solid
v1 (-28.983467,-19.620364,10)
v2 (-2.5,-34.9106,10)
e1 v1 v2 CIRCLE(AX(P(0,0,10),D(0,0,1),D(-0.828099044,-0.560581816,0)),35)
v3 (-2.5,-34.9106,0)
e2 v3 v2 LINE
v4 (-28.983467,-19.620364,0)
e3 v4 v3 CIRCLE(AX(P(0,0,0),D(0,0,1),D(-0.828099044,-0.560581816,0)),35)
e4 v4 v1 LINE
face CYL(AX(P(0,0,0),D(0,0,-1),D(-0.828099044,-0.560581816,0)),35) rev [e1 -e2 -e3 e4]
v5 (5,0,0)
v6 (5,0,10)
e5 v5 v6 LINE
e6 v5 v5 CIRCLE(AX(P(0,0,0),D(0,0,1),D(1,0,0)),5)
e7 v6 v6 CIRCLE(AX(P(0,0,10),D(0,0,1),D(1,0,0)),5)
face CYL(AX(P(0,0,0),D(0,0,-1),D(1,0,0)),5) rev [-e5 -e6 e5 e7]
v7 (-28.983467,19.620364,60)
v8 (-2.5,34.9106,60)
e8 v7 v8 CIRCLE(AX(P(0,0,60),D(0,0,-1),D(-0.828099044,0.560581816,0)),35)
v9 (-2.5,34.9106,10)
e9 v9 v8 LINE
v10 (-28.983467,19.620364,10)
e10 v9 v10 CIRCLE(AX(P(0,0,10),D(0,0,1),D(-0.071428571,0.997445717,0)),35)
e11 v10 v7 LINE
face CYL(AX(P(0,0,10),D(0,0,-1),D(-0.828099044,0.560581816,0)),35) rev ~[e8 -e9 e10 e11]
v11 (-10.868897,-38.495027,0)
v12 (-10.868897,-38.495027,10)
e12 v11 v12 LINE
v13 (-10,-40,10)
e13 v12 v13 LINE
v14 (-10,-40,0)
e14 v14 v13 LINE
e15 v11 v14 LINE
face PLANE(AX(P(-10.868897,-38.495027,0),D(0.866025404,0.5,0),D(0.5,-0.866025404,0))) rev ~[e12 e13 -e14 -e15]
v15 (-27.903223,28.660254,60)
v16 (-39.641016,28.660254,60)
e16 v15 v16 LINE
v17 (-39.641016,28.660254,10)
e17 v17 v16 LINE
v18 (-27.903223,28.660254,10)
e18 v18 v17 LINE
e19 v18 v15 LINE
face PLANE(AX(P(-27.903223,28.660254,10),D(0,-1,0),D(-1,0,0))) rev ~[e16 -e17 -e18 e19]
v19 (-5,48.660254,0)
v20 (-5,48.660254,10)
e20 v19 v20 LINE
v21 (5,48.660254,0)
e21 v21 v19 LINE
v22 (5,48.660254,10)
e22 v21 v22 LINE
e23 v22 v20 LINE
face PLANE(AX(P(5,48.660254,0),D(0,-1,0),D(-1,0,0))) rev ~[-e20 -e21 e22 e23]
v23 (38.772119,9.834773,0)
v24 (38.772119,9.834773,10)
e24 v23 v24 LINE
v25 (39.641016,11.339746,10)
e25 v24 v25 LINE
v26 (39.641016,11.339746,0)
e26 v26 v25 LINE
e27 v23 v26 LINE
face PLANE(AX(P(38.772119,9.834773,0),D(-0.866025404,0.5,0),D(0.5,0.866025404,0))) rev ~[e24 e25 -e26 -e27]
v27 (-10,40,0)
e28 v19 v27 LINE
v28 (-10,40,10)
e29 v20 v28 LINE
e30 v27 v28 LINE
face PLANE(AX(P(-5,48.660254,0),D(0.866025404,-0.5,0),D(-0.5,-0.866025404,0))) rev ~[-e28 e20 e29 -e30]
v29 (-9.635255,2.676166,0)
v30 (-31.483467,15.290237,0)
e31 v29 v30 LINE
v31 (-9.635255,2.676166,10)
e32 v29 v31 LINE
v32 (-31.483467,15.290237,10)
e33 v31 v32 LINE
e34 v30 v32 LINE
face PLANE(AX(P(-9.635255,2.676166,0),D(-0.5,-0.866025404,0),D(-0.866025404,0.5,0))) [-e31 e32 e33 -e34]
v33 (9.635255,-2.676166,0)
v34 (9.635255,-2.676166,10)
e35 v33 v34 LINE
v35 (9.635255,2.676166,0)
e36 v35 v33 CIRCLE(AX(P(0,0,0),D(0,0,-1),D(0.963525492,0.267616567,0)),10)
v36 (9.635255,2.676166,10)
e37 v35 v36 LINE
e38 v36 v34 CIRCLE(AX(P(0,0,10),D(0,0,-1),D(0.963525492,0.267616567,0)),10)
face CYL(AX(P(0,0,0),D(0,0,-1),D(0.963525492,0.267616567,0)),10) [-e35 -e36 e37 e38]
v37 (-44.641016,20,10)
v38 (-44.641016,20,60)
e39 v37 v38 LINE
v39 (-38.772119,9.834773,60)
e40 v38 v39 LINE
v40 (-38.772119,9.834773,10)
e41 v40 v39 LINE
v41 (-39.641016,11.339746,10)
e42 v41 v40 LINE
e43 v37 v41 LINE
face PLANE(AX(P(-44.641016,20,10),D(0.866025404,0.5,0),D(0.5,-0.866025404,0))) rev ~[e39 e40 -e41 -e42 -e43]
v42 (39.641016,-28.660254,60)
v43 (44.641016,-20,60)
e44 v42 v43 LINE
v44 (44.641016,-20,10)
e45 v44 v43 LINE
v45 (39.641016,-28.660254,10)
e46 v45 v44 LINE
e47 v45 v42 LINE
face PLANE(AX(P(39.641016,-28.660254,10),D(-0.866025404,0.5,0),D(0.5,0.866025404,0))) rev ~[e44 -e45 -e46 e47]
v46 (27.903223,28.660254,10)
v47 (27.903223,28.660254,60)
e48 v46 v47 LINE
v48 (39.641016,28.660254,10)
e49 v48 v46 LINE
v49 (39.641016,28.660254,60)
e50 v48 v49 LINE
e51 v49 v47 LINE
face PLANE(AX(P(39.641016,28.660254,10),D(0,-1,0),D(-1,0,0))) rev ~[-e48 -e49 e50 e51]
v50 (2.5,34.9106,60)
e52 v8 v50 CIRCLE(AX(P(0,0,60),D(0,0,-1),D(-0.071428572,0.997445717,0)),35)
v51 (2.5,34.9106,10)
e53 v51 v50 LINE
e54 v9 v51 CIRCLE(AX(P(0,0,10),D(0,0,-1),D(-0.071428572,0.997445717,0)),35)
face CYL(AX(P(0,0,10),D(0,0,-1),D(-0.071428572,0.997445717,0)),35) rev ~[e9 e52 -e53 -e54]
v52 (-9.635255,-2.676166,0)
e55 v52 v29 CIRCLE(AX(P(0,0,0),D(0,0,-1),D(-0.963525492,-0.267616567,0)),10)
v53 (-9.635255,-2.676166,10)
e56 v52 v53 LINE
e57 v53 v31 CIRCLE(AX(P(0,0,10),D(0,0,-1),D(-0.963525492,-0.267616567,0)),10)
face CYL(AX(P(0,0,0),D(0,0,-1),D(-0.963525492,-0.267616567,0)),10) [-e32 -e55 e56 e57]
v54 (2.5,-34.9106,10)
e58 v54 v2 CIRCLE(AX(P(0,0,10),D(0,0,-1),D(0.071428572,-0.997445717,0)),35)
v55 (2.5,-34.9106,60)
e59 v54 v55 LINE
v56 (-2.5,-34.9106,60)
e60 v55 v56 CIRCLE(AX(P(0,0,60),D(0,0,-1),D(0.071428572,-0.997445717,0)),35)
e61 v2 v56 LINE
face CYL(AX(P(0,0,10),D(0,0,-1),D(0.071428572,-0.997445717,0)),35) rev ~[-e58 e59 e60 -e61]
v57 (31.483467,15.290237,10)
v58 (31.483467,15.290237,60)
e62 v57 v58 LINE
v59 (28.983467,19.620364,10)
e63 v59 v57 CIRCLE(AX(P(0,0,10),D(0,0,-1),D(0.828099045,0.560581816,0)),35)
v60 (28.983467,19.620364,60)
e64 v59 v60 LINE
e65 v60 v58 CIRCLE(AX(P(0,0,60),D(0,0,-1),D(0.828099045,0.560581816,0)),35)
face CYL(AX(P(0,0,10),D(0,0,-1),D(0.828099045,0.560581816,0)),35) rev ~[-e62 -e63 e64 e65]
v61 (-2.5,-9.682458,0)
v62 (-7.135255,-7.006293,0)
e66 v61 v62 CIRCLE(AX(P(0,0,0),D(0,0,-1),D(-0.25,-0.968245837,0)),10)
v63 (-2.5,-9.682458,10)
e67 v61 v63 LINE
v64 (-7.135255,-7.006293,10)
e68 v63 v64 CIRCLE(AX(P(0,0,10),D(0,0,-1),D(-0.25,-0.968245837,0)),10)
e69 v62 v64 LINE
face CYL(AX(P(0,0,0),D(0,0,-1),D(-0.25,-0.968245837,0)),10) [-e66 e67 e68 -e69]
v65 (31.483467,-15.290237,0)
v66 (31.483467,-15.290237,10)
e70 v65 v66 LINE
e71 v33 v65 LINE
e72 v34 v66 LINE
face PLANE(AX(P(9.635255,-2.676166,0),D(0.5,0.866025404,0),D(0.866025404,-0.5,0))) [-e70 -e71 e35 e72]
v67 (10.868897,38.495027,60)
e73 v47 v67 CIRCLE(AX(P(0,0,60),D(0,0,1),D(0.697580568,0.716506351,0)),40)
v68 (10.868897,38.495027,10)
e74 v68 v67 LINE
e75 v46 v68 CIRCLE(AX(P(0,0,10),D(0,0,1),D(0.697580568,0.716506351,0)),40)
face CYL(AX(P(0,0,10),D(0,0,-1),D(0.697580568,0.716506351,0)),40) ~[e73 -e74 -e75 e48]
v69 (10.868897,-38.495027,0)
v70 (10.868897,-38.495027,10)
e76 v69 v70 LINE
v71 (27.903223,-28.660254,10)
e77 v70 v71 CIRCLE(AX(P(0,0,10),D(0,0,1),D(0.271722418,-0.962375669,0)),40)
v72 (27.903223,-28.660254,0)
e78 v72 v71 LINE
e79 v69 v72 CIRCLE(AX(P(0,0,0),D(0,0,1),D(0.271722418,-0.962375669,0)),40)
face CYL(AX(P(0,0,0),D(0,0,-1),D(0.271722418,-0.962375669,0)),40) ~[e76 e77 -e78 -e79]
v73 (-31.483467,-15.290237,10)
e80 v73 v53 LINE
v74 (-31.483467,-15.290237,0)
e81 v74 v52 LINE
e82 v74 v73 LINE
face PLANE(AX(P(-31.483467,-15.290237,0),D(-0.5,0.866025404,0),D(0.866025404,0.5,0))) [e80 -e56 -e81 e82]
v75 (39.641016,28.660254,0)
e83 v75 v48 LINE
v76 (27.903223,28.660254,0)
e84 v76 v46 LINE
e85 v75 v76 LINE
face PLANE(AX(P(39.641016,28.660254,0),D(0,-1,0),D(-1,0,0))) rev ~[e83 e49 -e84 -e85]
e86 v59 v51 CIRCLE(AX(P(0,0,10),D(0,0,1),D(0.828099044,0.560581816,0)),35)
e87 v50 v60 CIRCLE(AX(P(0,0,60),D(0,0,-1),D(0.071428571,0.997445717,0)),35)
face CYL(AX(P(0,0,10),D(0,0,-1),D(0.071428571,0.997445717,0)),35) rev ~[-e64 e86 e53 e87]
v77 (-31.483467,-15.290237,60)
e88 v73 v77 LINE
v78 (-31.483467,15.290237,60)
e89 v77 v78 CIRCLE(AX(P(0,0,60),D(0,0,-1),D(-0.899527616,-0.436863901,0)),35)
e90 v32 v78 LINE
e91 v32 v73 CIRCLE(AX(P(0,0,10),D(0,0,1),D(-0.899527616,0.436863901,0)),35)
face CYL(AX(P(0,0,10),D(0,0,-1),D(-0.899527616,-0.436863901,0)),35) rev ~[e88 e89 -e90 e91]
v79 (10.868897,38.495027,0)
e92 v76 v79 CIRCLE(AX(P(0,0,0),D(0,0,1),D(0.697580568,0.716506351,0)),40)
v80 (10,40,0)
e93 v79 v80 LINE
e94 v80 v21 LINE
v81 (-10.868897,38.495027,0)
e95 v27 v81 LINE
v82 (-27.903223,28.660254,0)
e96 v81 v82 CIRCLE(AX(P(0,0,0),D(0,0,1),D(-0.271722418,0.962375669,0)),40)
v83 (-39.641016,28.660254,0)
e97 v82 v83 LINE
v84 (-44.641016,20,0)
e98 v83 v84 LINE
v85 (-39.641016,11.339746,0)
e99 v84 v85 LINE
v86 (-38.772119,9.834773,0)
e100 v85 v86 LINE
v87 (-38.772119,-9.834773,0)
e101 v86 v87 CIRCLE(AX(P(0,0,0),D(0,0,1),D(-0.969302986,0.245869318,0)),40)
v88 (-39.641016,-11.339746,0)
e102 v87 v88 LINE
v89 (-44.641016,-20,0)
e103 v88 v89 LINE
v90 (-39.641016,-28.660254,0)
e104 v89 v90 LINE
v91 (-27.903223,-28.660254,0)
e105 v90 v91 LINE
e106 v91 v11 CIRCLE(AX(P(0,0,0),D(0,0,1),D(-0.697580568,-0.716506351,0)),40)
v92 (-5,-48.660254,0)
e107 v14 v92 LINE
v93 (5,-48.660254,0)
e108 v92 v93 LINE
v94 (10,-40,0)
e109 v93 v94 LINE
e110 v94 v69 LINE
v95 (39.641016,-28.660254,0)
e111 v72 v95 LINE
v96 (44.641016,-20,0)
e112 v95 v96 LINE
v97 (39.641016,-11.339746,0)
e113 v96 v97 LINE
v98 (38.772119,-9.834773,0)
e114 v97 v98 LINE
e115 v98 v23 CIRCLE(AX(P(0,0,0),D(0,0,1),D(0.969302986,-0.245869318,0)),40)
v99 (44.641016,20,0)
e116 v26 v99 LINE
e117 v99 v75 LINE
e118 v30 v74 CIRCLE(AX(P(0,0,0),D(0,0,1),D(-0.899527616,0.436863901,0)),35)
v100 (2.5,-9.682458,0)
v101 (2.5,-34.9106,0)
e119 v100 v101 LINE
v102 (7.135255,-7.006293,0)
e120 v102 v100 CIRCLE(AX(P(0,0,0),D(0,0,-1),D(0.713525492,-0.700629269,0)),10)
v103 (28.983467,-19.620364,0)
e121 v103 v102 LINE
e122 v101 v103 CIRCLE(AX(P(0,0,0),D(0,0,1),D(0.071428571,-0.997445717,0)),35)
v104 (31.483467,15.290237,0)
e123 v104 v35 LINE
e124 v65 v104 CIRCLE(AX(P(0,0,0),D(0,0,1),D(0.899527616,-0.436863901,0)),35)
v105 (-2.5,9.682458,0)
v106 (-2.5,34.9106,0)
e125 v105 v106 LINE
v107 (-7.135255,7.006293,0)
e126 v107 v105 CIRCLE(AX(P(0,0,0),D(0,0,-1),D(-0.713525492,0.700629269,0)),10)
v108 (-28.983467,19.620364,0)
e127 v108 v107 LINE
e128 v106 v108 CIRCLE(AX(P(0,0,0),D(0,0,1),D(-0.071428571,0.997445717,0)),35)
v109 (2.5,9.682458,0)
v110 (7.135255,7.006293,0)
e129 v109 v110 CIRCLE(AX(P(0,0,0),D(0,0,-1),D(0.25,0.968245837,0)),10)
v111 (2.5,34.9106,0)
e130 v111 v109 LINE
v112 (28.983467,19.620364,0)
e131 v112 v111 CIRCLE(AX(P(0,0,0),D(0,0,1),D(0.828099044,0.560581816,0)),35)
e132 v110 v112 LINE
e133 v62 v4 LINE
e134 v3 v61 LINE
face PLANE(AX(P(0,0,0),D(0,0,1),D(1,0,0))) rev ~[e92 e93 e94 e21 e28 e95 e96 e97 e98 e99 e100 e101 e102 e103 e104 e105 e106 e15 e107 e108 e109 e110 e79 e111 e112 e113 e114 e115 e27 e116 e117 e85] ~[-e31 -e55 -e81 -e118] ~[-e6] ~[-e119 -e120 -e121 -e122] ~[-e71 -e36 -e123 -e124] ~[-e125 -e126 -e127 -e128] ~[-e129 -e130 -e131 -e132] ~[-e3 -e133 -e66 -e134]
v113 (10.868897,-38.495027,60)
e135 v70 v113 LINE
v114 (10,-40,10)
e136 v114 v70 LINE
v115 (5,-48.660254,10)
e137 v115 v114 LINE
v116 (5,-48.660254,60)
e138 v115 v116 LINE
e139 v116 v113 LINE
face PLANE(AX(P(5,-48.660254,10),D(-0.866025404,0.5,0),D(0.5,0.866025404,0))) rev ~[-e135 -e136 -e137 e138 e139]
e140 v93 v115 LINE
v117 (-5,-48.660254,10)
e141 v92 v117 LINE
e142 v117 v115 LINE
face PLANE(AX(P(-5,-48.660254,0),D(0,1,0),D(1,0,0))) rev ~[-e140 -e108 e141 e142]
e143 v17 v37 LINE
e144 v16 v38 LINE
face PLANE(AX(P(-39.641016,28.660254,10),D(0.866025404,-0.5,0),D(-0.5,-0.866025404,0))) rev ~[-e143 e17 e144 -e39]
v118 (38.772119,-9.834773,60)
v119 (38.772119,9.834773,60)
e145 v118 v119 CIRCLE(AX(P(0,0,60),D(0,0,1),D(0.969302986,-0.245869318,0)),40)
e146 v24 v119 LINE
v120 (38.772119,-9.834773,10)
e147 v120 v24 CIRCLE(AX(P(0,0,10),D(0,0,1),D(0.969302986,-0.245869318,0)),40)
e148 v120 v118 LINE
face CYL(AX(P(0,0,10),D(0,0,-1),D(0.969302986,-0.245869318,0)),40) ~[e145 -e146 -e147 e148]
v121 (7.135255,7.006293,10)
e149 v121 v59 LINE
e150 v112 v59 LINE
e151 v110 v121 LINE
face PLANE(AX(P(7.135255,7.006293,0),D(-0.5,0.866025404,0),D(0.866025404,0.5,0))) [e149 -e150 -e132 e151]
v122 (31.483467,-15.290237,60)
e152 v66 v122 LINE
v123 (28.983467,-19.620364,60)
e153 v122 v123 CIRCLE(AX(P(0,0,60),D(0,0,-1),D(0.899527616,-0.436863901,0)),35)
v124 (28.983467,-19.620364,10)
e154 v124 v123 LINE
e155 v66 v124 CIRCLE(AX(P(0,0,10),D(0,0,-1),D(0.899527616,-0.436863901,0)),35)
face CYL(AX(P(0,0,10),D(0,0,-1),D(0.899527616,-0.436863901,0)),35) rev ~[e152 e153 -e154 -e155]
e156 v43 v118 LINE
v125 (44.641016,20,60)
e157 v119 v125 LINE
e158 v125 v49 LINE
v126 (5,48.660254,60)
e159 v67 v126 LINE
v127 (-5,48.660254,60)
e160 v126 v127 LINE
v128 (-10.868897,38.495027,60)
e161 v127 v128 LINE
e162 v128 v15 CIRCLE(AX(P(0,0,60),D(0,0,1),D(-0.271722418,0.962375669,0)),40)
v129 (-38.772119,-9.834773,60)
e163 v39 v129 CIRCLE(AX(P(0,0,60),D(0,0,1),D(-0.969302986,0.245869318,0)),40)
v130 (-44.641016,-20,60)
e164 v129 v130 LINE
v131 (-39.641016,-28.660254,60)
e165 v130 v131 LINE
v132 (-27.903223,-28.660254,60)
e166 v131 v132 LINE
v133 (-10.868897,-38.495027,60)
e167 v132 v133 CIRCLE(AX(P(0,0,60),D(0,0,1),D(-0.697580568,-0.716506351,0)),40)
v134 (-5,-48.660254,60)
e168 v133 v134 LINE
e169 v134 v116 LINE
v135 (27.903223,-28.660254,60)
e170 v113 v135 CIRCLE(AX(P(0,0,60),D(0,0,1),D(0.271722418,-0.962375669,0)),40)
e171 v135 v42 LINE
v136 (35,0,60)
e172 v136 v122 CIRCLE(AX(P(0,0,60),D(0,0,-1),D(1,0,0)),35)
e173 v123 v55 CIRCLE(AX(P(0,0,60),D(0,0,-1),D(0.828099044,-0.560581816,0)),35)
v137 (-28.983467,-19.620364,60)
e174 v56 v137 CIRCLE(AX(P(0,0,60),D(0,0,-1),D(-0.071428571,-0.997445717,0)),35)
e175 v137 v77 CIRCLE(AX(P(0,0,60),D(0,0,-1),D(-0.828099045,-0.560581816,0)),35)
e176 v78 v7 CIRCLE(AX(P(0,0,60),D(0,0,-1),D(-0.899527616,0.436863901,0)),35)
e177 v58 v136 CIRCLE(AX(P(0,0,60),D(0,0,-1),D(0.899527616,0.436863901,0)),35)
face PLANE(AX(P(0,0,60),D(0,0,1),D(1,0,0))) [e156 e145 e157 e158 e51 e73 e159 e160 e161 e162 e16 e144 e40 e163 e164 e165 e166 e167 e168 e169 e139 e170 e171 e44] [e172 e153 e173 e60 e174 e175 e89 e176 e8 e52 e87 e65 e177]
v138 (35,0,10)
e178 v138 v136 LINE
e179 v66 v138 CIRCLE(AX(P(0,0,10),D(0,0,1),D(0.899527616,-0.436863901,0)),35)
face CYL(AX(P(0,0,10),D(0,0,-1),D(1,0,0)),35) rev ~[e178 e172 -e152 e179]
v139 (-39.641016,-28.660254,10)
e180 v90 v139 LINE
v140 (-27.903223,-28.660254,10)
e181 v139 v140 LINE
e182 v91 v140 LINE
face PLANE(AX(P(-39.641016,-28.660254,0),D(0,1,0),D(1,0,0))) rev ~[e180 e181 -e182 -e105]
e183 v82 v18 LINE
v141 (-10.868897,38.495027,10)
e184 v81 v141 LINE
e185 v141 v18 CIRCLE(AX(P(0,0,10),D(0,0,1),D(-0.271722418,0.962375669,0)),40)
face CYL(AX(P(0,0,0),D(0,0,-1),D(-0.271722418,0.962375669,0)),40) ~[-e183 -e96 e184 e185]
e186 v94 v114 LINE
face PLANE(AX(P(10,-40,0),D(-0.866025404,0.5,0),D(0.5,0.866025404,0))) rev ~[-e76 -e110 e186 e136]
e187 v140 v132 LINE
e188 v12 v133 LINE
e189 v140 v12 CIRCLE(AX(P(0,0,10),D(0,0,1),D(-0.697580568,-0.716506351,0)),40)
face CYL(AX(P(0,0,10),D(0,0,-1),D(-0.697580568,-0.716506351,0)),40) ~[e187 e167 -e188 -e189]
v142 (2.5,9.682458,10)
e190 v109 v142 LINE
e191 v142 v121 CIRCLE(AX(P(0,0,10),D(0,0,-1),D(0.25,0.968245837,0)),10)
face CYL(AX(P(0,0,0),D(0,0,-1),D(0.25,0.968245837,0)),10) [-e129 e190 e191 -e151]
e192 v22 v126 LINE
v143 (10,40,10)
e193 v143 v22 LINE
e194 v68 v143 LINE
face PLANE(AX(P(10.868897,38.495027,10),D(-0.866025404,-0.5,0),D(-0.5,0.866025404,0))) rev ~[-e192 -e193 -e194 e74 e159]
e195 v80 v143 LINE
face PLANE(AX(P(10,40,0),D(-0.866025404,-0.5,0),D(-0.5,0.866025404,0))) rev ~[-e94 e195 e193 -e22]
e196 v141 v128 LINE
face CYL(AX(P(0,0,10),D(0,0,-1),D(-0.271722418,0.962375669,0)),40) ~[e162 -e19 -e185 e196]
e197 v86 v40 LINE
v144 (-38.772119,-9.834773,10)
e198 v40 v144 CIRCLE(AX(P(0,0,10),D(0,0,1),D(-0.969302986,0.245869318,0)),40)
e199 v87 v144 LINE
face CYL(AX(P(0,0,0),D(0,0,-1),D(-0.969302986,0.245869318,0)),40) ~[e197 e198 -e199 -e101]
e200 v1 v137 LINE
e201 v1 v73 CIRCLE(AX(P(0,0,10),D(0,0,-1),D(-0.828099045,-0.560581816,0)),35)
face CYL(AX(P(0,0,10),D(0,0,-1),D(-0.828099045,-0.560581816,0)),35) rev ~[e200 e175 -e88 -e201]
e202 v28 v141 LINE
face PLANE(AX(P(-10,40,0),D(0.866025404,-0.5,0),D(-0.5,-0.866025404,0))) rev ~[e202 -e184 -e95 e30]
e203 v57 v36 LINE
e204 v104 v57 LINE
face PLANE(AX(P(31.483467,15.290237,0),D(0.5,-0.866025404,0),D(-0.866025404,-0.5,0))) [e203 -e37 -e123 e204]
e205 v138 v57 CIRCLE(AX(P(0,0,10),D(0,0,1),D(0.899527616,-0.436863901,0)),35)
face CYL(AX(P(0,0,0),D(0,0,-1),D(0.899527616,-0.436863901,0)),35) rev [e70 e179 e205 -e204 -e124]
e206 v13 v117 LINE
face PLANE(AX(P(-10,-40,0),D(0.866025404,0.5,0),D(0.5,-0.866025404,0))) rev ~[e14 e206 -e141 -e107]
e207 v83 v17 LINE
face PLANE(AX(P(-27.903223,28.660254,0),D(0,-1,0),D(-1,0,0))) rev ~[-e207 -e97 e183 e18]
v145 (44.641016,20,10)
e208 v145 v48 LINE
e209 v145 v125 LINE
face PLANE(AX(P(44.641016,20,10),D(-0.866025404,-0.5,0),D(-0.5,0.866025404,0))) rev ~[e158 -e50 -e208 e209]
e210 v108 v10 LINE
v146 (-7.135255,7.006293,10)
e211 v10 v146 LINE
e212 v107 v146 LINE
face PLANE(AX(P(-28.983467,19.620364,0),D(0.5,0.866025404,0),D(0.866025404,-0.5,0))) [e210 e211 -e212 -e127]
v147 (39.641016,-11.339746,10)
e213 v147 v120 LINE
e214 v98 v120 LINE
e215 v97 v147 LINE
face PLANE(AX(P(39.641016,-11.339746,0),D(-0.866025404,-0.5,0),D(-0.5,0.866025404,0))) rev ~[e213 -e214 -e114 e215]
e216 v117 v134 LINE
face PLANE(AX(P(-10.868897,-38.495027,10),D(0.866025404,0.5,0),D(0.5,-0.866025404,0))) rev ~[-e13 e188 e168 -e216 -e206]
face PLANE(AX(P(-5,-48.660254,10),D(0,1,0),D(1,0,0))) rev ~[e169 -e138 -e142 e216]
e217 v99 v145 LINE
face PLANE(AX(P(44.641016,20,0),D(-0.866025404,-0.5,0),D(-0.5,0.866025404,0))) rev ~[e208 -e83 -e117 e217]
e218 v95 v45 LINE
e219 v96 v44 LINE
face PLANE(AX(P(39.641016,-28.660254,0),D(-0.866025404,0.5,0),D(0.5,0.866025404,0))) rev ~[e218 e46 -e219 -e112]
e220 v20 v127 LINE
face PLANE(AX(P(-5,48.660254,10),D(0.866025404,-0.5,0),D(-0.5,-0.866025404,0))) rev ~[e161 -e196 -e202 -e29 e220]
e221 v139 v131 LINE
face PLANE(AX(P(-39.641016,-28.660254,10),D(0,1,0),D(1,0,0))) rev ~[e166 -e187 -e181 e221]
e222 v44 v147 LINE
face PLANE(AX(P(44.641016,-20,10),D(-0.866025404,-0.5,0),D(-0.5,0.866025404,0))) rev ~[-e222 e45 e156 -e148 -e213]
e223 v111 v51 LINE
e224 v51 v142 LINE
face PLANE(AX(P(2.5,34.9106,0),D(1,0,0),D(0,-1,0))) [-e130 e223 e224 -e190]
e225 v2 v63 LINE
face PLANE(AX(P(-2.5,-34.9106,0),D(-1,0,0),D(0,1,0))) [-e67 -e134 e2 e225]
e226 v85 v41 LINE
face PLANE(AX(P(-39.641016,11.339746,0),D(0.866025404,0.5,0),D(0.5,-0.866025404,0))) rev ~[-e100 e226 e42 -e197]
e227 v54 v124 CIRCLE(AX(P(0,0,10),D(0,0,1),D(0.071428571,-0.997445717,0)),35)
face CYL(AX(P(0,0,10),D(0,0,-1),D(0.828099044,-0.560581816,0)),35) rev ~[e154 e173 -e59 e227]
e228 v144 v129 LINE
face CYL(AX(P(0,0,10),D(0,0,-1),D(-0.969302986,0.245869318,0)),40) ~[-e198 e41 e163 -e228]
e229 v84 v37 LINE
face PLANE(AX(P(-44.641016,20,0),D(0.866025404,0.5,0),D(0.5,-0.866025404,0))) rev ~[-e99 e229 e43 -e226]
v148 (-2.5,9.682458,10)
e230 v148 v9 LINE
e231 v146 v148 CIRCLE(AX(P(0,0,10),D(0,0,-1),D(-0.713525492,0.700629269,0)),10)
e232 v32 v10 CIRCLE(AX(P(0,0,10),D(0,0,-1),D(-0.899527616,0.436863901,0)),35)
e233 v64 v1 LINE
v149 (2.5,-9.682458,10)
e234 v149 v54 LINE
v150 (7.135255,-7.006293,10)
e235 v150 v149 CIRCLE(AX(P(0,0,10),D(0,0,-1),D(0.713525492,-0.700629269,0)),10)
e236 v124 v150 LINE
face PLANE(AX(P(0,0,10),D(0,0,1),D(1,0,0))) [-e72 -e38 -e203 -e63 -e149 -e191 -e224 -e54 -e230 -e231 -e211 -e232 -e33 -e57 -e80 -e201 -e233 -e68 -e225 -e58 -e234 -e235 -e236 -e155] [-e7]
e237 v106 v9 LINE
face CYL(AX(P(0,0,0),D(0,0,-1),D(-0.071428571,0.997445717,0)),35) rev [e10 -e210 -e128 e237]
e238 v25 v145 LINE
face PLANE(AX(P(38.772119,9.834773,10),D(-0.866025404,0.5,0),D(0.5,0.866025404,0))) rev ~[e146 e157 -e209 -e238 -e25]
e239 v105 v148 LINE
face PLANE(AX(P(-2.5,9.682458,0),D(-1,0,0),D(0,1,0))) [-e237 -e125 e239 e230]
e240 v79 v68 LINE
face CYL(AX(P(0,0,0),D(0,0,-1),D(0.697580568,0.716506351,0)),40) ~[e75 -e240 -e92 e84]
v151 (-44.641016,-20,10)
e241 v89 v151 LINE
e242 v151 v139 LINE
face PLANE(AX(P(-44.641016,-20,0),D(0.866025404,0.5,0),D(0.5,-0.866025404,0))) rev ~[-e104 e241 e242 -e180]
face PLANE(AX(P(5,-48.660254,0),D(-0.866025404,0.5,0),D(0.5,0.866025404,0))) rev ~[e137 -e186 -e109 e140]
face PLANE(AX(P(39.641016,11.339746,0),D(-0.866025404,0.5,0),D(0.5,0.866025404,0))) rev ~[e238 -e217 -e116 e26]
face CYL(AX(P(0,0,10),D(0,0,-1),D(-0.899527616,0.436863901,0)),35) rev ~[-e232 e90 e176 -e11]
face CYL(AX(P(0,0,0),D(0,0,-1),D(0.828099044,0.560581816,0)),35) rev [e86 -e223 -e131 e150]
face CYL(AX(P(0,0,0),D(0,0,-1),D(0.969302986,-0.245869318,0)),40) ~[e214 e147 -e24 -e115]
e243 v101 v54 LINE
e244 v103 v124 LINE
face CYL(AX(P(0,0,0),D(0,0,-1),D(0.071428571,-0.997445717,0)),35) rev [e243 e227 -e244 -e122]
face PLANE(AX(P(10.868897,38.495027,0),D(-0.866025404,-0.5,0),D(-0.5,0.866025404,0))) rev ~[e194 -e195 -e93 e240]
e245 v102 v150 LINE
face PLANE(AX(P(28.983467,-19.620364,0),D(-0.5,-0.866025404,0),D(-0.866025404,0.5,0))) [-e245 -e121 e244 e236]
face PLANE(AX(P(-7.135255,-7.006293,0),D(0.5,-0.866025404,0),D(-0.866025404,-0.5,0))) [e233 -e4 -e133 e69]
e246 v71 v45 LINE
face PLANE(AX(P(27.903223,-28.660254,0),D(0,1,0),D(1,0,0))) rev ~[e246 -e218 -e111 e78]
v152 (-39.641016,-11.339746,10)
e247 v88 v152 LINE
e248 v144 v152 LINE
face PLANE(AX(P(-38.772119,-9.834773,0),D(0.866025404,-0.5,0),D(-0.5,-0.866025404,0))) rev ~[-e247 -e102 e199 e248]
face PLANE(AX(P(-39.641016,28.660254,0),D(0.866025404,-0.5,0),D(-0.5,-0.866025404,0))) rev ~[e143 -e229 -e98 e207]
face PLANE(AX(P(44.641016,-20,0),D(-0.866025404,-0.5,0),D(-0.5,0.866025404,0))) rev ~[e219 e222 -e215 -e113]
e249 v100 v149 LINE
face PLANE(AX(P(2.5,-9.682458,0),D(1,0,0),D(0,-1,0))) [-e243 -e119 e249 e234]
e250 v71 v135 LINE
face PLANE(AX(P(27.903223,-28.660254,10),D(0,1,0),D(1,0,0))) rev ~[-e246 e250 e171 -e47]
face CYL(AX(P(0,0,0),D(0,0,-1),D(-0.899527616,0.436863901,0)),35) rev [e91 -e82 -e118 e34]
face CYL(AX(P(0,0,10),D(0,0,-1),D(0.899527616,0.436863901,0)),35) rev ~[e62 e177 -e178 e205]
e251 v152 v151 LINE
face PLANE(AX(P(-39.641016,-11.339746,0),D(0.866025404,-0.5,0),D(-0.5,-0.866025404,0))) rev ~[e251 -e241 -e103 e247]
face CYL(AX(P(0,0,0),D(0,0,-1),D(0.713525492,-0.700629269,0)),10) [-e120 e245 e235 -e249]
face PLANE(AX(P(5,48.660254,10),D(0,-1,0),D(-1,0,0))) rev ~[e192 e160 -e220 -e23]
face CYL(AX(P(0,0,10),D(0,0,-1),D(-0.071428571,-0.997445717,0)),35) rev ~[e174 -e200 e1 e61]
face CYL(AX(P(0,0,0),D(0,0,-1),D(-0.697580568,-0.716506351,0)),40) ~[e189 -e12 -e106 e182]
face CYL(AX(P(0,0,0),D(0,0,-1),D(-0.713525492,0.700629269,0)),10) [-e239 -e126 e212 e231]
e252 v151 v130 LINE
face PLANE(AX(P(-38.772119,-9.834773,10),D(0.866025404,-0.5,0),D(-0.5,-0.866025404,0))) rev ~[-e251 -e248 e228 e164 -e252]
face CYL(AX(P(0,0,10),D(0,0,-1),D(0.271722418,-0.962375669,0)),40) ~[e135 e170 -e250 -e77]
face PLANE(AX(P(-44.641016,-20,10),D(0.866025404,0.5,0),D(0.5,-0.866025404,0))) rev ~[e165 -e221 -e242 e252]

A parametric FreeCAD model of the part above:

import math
import FreeCAD as App
import Part
import Sketcher
Q = App.Units.Quantity

doc = App.newDocument("Part")
params = doc.addObject("Spreadsheet::Sheet", "Params")
for row, (alias, value) in enumerate([
    ("sketch1_diameter", "10 mm"),
    ("sketch1_radius", "40 mm"),
    ("sketch1_radius2", "35 mm"),
    ("sketch1_radius3", "10 mm"),
    ("sketch1_width", "10 mm"),
    ("pad1_length", "10 mm"),
    ("sketch2_radius", "40 mm"),
    ("sketch2_radius2", "35 mm"),
    ("sketch2_width", "10 mm"),
    ("sketch2_length", "10 mm"),
    ("pad2_length", "50 mm"),
], start=1):
    params.set(f"A{row}", alias)
    params.set(f"B{row}", "=" + value)
    params.setAlias(f"B{row}", alias)

body = doc.addObject("PartDesign::Body", "Body")

# Sketch on XY plane
sketch1 = doc.addObject("Sketcher::SketchObject", "Sketch")
body.addObject(sketch1)
sketch1.AttachmentSupport = (doc.XY_Plane, [""])
sketch1.MapMode = "FlatFace"
sketch1.addGeometry([
    Part.LineSegment(App.Vector(-5, 48.660254, 0), App.Vector(-10, 40, 0)),  # 0
    Part.LineSegment(App.Vector(-10, 40, 0), App.Vector(-10.868897, 38.495027, 0)),  # 1
    Part.ArcOfCircle(Part.Circle(App.Vector(0, 0, 0), App.Vector(0, 0, 1), 40), math.radians(105.766786), math.radians(134.233214)),  # 2
    Part.LineSegment(App.Vector(-27.903223, 28.660254, 0), App.Vector(-39.641016, 28.660254, 0)),  # 3
    Part.LineSegment(App.Vector(-39.641016, 28.660254, 0), App.Vector(-44.641016, 20, 0)),  # 4
    Part.LineSegment(App.Vector(-44.641016, 20, 0), App.Vector(-39.641016, 11.339746, 0)),  # 5
    Part.LineSegment(App.Vector(-39.641016, 11.339746, 0), App.Vector(-38.772119, 9.834773, 0)),  # 6
    Part.ArcOfCircle(Part.Circle(App.Vector(0, 0, 0), App.Vector(0, 0, 1), 40), math.radians(165.766786), math.radians(194.233214)),  # 7
    Part.LineSegment(App.Vector(-38.772119, -9.834773, 0), App.Vector(-39.641016, -11.339746, 0)),  # 8
    Part.LineSegment(App.Vector(-39.641016, -11.339746, 0), App.Vector(-44.641016, -20, 0)),  # 9
    Part.LineSegment(App.Vector(-44.641016, -20, 0), App.Vector(-39.641016, -28.660254, 0)),  # 10
    Part.LineSegment(App.Vector(-39.641016, -28.660254, 0), App.Vector(-27.903223, -28.660254, 0)),  # 11
    Part.ArcOfCircle(Part.Circle(App.Vector(0, 0, 0), App.Vector(0, 0, 1), 40), math.radians(-134.233214), math.radians(-105.766786)),  # 12
    Part.LineSegment(App.Vector(-10.868897, -38.495027, 0), App.Vector(-10, -40, 0)),  # 13
    Part.LineSegment(App.Vector(-10, -40, 0), App.Vector(-5, -48.660254, 0)),  # 14
    Part.LineSegment(App.Vector(-5, -48.660254, 0), App.Vector(5, -48.660254, 0)),  # 15
    Part.LineSegment(App.Vector(5, -48.660254, 0), App.Vector(10, -40, 0)),  # 16
    Part.LineSegment(App.Vector(10, -40, 0), App.Vector(10.868897, -38.495027, 0)),  # 17
    Part.ArcOfCircle(Part.Circle(App.Vector(0, 0, 0), App.Vector(0, 0, 1), 40), math.radians(-74.233214), math.radians(-45.766786)),  # 18
    Part.LineSegment(App.Vector(27.903223, -28.660254, 0), App.Vector(39.641016, -28.660254, 0)),  # 19
    Part.LineSegment(App.Vector(39.641016, -28.660254, 0), App.Vector(44.641016, -20, 0)),  # 20
    Part.LineSegment(App.Vector(44.641016, -20, 0), App.Vector(39.641016, -11.339746, 0)),  # 21
    Part.LineSegment(App.Vector(39.641016, -11.339746, 0), App.Vector(38.772119, -9.834773, 0)),  # 22
    Part.ArcOfCircle(Part.Circle(App.Vector(0, 0, 0), App.Vector(0, 0, 1), 40), math.radians(-14.233214), math.radians(14.233214)),  # 23
    Part.LineSegment(App.Vector(38.772119, 9.834773, 0), App.Vector(39.641016, 11.339746, 0)),  # 24
    Part.LineSegment(App.Vector(39.641016, 11.339746, 0), App.Vector(44.641016, 20, 0)),  # 25
    Part.LineSegment(App.Vector(44.641016, 20, 0), App.Vector(39.641016, 28.660254, 0)),  # 26
    Part.LineSegment(App.Vector(39.641016, 28.660254, 0), App.Vector(27.903223, 28.660254, 0)),  # 27
    Part.ArcOfCircle(Part.Circle(App.Vector(0, 0, 0), App.Vector(0, 0, 1), 40), math.radians(45.766786), math.radians(74.233214)),  # 28
    Part.LineSegment(App.Vector(10.868897, 38.495027, 0), App.Vector(10, 40, 0)),  # 29
    Part.LineSegment(App.Vector(10, 40, 0), App.Vector(5, 48.660254, 0)),  # 30
    Part.LineSegment(App.Vector(5, 48.660254, 0), App.Vector(-5, 48.660254, 0)),  # 31
    Part.LineSegment(App.Vector(-2.5, -9.682458, 0), App.Vector(-2.5, -34.9106, 0)),  # 32
    Part.ArcOfCircle(Part.Circle(App.Vector(0, 0, 0), App.Vector(0, 0, 1), 35), math.radians(-145.903956), math.radians(-94.096044)),  # 33
    Part.LineSegment(App.Vector(-28.983467, -19.620364, 0), App.Vector(-7.135255, -7.006293, 0)),  # 34
    Part.ArcOfCircle(Part.Circle(App.Vector(0, 0, 0), App.Vector(0, 0, 1), 10), math.radians(-135.522488), math.radians(-104.477512)),  # 35
    Part.LineSegment(App.Vector(7.135255, -7.006293, 0), App.Vector(28.983467, -19.620364, 0)),  # 36
    Part.ArcOfCircle(Part.Circle(App.Vector(0, 0, 0), App.Vector(0, 0, 1), 35), math.radians(-85.903956), math.radians(-34.096044)),  # 37
    Part.LineSegment(App.Vector(2.5, -34.9106, 0), App.Vector(2.5, -9.682458, 0)),  # 38
    Part.ArcOfCircle(Part.Circle(App.Vector(0, 0, 0), App.Vector(0, 0, 1), 10), math.radians(-75.522488), math.radians(-44.477512)),  # 39
    Part.LineSegment(App.Vector(-9.635255, -2.676166, 0), App.Vector(-31.483467, -15.290237, 0)),  # 40
    Part.ArcOfCircle(Part.Circle(App.Vector(0, 0, 0), App.Vector(0, 0, 1), 35), math.radians(154.096044), math.radians(205.903956)),  # 41
    Part.LineSegment(App.Vector(-31.483467, 15.290237, 0), App.Vector(-9.635255, 2.676166, 0)),  # 42
    Part.ArcOfCircle(Part.Circle(App.Vector(0, 0, 0), App.Vector(0, 0, 1), 10), math.radians(164.477512), math.radians(195.522488)),  # 43
    Part.LineSegment(App.Vector(-2.5, 34.9106, 0), App.Vector(-2.5, 9.682458, 0)),  # 44
    Part.ArcOfCircle(Part.Circle(App.Vector(0, 0, 0), App.Vector(0, 0, 1), 10), math.radians(104.477512), math.radians(135.522488)),  # 45
    Part.LineSegment(App.Vector(-7.135255, 7.006293, 0), App.Vector(-28.983467, 19.620364, 0)),  # 46
    Part.ArcOfCircle(Part.Circle(App.Vector(0, 0, 0), App.Vector(0, 0, 1), 35), math.radians(94.096044), math.radians(145.903956)),  # 47
    Part.Circle(App.Vector(0, 0, 0), App.Vector(0, 0, 1), 5),  # 48
    Part.LineSegment(App.Vector(9.635255, 2.676166, 0), App.Vector(31.483467, 15.290237, 0)),  # 49
    Part.ArcOfCircle(Part.Circle(App.Vector(0, 0, 0), App.Vector(0, 0, 1), 35), math.radians(-25.903956), math.radians(25.903956)),  # 50
    Part.LineSegment(App.Vector(31.483467, -15.290237, 0), App.Vector(9.635255, -2.676166, 0)),  # 51
    Part.ArcOfCircle(Part.Circle(App.Vector(0, 0, 0), App.Vector(0, 0, 1), 10), math.radians(-15.522488), math.radians(15.522488)),  # 52
    Part.LineSegment(App.Vector(2.5, 9.682458, 0), App.Vector(2.5, 34.9106, 0)),  # 53
    Part.ArcOfCircle(Part.Circle(App.Vector(0, 0, 0), App.Vector(0, 0, 1), 35), math.radians(34.096044), math.radians(85.903956)),  # 54
    Part.LineSegment(App.Vector(28.983467, 19.620364, 0), App.Vector(7.135255, 7.006293, 0)),  # 55
    Part.ArcOfCircle(Part.Circle(App.Vector(0, 0, 0), App.Vector(0, 0, 1), 10), math.radians(44.477512), math.radians(75.522488)),  # 56
], False)
sketch1.addConstraint([
    Sketcher.Constraint("Coincident", 0, 2, 1, 1),
    Sketcher.Constraint("Coincident", 1, 2, 2, 1),
    Sketcher.Constraint("Coincident", 2, 2, 3, 1),
    Sketcher.Constraint("Coincident", 3, 2, 4, 1),
    Sketcher.Constraint("Coincident", 4, 2, 5, 1),
    Sketcher.Constraint("Coincident", 5, 2, 6, 1),
    Sketcher.Constraint("Coincident", 6, 2, 7, 1),
    Sketcher.Constraint("Coincident", 7, 2, 8, 1),
    Sketcher.Constraint("Coincident", 8, 2, 9, 1),
    Sketcher.Constraint("Coincident", 9, 2, 10, 1),
    Sketcher.Constraint("Coincident", 10, 2, 11, 1),
    Sketcher.Constraint("Coincident", 11, 2, 12, 1),
    Sketcher.Constraint("Coincident", 12, 2, 13, 1),
    Sketcher.Constraint("Coincident", 13, 2, 14, 1),
    Sketcher.Constraint("Coincident", 14, 2, 15, 1),
    Sketcher.Constraint("Coincident", 15, 2, 16, 1),
    Sketcher.Constraint("Coincident", 16, 2, 17, 1),
    Sketcher.Constraint("Coincident", 17, 2, 18, 1),
    Sketcher.Constraint("Coincident", 18, 2, 19, 1),
    Sketcher.Constraint("Coincident", 19, 2, 20, 1),
    Sketcher.Constraint("Coincident", 20, 2, 21, 1),
    Sketcher.Constraint("Coincident", 21, 2, 22, 1),
    Sketcher.Constraint("Coincident", 22, 2, 23, 1),
    Sketcher.Constraint("Coincident", 23, 2, 24, 1),
    Sketcher.Constraint("Coincident", 24, 2, 25, 1),
    Sketcher.Constraint("Coincident", 25, 2, 26, 1),
    Sketcher.Constraint("Coincident", 26, 2, 27, 1),
    Sketcher.Constraint("Coincident", 27, 2, 28, 1),
    Sketcher.Constraint("Coincident", 28, 2, 29, 1),
    Sketcher.Constraint("Coincident", 29, 2, 30, 1),
    Sketcher.Constraint("Coincident", 30, 2, 31, 1),
    Sketcher.Constraint("Coincident", 31, 2, 0, 1),
    Sketcher.Constraint("Coincident", 32, 2, 33, 2),
    Sketcher.Constraint("Coincident", 33, 1, 34, 1),
    Sketcher.Constraint("Coincident", 34, 2, 35, 1),
    Sketcher.Constraint("Coincident", 35, 2, 32, 1),
    Sketcher.Constraint("Coincident", 36, 2, 37, 2),
    Sketcher.Constraint("Coincident", 37, 1, 38, 1),
    Sketcher.Constraint("Coincident", 38, 2, 39, 1),
    Sketcher.Constraint("Coincident", 39, 2, 36, 1),
    Sketcher.Constraint("Coincident", 40, 2, 41, 2),
    Sketcher.Constraint("Coincident", 41, 1, 42, 1),
    Sketcher.Constraint("Coincident", 42, 2, 43, 1),
    Sketcher.Constraint("Coincident", 43, 2, 40, 1),
    Sketcher.Constraint("Coincident", 44, 2, 45, 1),
    Sketcher.Constraint("Coincident", 45, 2, 46, 1),
    Sketcher.Constraint("Coincident", 46, 2, 47, 2),
    Sketcher.Constraint("Coincident", 47, 1, 44, 1),
    Sketcher.Constraint("Coincident", 49, 2, 50, 2),
    Sketcher.Constraint("Coincident", 50, 1, 51, 1),
    Sketcher.Constraint("Coincident", 51, 2, 52, 1),
    Sketcher.Constraint("Coincident", 52, 2, 49, 1),
    Sketcher.Constraint("Coincident", 53, 2, 54, 2),
    Sketcher.Constraint("Coincident", 54, 1, 55, 1),
    Sketcher.Constraint("Coincident", 55, 2, 56, 1),
    Sketcher.Constraint("Coincident", 56, 2, 53, 1),
    Sketcher.Constraint("Horizontal", 3),
    Sketcher.Constraint("Horizontal", 11),
    Sketcher.Constraint("Horizontal", 15),
    Sketcher.Constraint("Horizontal", 19),
    Sketcher.Constraint("Horizontal", 27),
    Sketcher.Constraint("Horizontal", 31),
    Sketcher.Constraint("Vertical", 32),
    Sketcher.Constraint("Vertical", 38),
    Sketcher.Constraint("Vertical", 44),
    Sketcher.Constraint("Vertical", 53),
    Sketcher.Constraint("Coincident", 2, 3, -1, 1),
    Sketcher.Constraint("Coincident", 7, 3, -1, 1),
    Sketcher.Constraint("Coincident", 12, 3, -1, 1),
    Sketcher.Constraint("Coincident", 18, 3, -1, 1),
    Sketcher.Constraint("Coincident", 23, 3, -1, 1),
    Sketcher.Constraint("Coincident", 28, 3, -1, 1),
    Sketcher.Constraint("Coincident", 33, 3, -1, 1),
    Sketcher.Constraint("Coincident", 35, 3, -1, 1),
    Sketcher.Constraint("Coincident", 37, 3, -1, 1),
    Sketcher.Constraint("Coincident", 39, 3, -1, 1),
    Sketcher.Constraint("Coincident", 41, 3, -1, 1),
    Sketcher.Constraint("Coincident", 43, 3, -1, 1),
    Sketcher.Constraint("Coincident", 45, 3, -1, 1),
    Sketcher.Constraint("Coincident", 47, 3, -1, 1),
    Sketcher.Constraint("Coincident", 48, 3, -1, 1),
    Sketcher.Constraint("Coincident", 50, 3, -1, 1),
    Sketcher.Constraint("Coincident", 52, 3, -1, 1),
    Sketcher.Constraint("Coincident", 54, 3, -1, 1),
    Sketcher.Constraint("Coincident", 56, 3, -1, 1),
    Sketcher.Constraint("Equal", 2, 7),
    Sketcher.Constraint("Equal", 7, 12),
    Sketcher.Constraint("Equal", 12, 18),
    Sketcher.Constraint("Equal", 18, 23),
    Sketcher.Constraint("Equal", 23, 28),
    Sketcher.Constraint("Equal", 33, 37),
    Sketcher.Constraint("Equal", 35, 39),
    Sketcher.Constraint("Equal", 37, 41),
    Sketcher.Constraint("Equal", 39, 43),
    Sketcher.Constraint("Equal", 43, 45),
    Sketcher.Constraint("Equal", 41, 47),
    Sketcher.Constraint("Equal", 47, 50),
    Sketcher.Constraint("Equal", 45, 52),
    Sketcher.Constraint("Equal", 50, 54),
    Sketcher.Constraint("Equal", 52, 56),
    Sketcher.Constraint("Symmetric", 0, 2, 16, 2, -1, 1),
    Sketcher.Constraint("Symmetric", 3, 2, 19, 2, -1, 1),
    Sketcher.Constraint("Symmetric", 4, 2, 20, 2, -1, 1),
    Sketcher.Constraint("Symmetric", 5, 2, 21, 2, -1, 1),
    Sketcher.Constraint("Symmetric", 8, 2, 24, 2, -1, 1),
    Sketcher.Constraint("Symmetric", 9, 2, 25, 2, -1, 1),
    Sketcher.Constraint("Symmetric", 10, 2, 26, 2, -1, 1),
    Sketcher.Constraint("Symmetric", 13, 2, 29, 2, -1, 1),
    Sketcher.Constraint("Symmetric", 14, 2, 30, 2, -1, 1),
    Sketcher.Constraint("Symmetric", 13, 2, 16, 2, -2),
    Sketcher.Constraint("Symmetric", 10, 2, 19, 2, -2),
    Sketcher.Constraint("Symmetric", 9, 2, 20, 2, -2),
    Sketcher.Constraint("Symmetric", 8, 2, 21, 2, -2),
    Sketcher.Constraint("Parallel", 0, 1),
    Sketcher.Constraint("Parallel", 1, 4),
    Sketcher.Constraint("Parallel", 5, 6),
    Sketcher.Constraint("Parallel", 4, 8),
    Sketcher.Constraint("Parallel", 8, 9),
    Sketcher.Constraint("Parallel", 10, 13),
    Sketcher.Constraint("Parallel", 13, 14),
    Sketcher.Constraint("Parallel", 9, 16),
    Sketcher.Constraint("Parallel", 16, 17),
    Sketcher.Constraint("Parallel", 21, 22),
    Sketcher.Constraint("Parallel", 20, 24),
    Sketcher.Constraint("Parallel", 26, 29),
    Sketcher.Constraint("Perpendicular", 30, 34),
    Sketcher.Constraint("Perpendicular", 25, 36),
    Sketcher.Constraint("Parallel", 34, 40),
    Sketcher.Constraint("Parallel", 36, 42),
    Sketcher.Constraint("Parallel", 42, 46),
    Sketcher.Constraint("Parallel", 40, 49),
    Sketcher.Constraint("Parallel", 46, 51),
    Sketcher.Constraint("Parallel", 49, 55),
    Sketcher.Constraint("Horizontal", 33, 1, 36, 2),
    Sketcher.Constraint("Horizontal", 32, 2, 37, 1),
    Sketcher.Constraint("Horizontal", 41, 1, 49, 2),
    Sketcher.Constraint("Horizontal", 40, 2, 50, 1),
    Sketcher.Constraint("Horizontal", 47, 1, 53, 2),
    Sketcher.Constraint("Horizontal", 46, 2, 54, 1),
    Sketcher.Constraint("Vertical", 3, 2, 5, 2),
    Sketcher.Constraint("Vertical", 40, 2, 41, 1),
    Sketcher.Constraint("Vertical", 35, 2, 44, 2),
    Sketcher.Constraint("Vertical", 34, 2, 45, 2),
    Sketcher.Constraint("Equal", 0, 4),
    Sketcher.Constraint("Equal", 1, 6),
    Sketcher.Constraint("Equal", 36, 40),
    Sketcher.Constraint("Diameter", 48, Q("10 mm")),
    Sketcher.Constraint("Radius", 2, Q("40 mm")),
    Sketcher.Constraint("Radius", 33, Q("35 mm")),
    Sketcher.Constraint("Radius", 35, Q("10 mm")),
    Sketcher.Constraint("DistanceX", 15, 1, 15, 2, Q("10 mm")),
    Sketcher.Constraint("Angle", 0, Q("-120 deg")),
    Sketcher.Constraint("Distance", 0, Q("10 mm")),
    Sketcher.Constraint("DistanceY", -1, 1, 0, 2, Q("40 mm")),
    Sketcher.Constraint("DistanceY", -1, 1, 4, 2, Q("20 mm")),
    Sketcher.Constraint("DistanceX", 32, 2, -1, 1, Q("2.5 mm")),
    Sketcher.Constraint("Distance", 34, Q("25.228142 mm")),
])
sketch1.setExpression("Constraints[146]", "Params.sketch1_diameter")
sketch1.setExpression("Constraints[147]", "Params.sketch1_radius")
sketch1.setExpression("Constraints[148]", "Params.sketch1_radius2")
sketch1.setExpression("Constraints[149]", "Params.sketch1_radius3")
sketch1.setExpression("Constraints[150]", "Params.sketch1_width")
pad1 = doc.addObject("PartDesign::Pad", "Pad")
body.addObject(pad1)
pad1.Profile = sketch1
pad1.setExpression("Length", "Params.pad1_length")

# Sketch on XY plane
sketch2 = doc.addObject("Sketcher::SketchObject", "Sketch001")
body.addObject(sketch2)
sketch2.AttachmentSupport = (doc.XY_Plane, [""])
sketch2.MapMode = "FlatFace"
sketch2.AttachmentOffset = App.Placement(App.Vector(0, 0, 10), App.Rotation())
sketch2.addGeometry([
    Part.LineSegment(App.Vector(-44.641016, 20, 0), App.Vector(-38.772119, 9.834773, 0)),  # 0
    Part.ArcOfCircle(Part.Circle(App.Vector(0, 0, 0), App.Vector(0, 0, 1), 40), math.radians(165.766786), math.radians(194.233214)),  # 1
    Part.LineSegment(App.Vector(-38.772119, -9.834773, 0), App.Vector(-44.641016, -20, 0)),  # 2
    Part.LineSegment(App.Vector(-44.641016, -20, 0), App.Vector(-39.641016, -28.660254, 0)),  # 3
    Part.LineSegment(App.Vector(-39.641016, -28.660254, 0), App.Vector(-27.903223, -28.660254, 0)),  # 4
    Part.ArcOfCircle(Part.Circle(App.Vector(0, 0, 0), App.Vector(0, 0, 1), 40), math.radians(-134.233214), math.radians(-105.766786)),  # 5
    Part.LineSegment(App.Vector(-10.868897, -38.495027, 0), App.Vector(-5, -48.660254, 0)),  # 6
    Part.LineSegment(App.Vector(-5, -48.660254, 0), App.Vector(5, -48.660254, 0)),  # 7
    Part.LineSegment(App.Vector(5, -48.660254, 0), App.Vector(10.868897, -38.495027, 0)),  # 8
    Part.ArcOfCircle(Part.Circle(App.Vector(0, 0, 0), App.Vector(0, 0, 1), 40), math.radians(-74.233214), math.radians(-45.766786)),  # 9
    Part.LineSegment(App.Vector(27.903223, -28.660254, 0), App.Vector(39.641016, -28.660254, 0)),  # 10
    Part.LineSegment(App.Vector(39.641016, -28.660254, 0), App.Vector(44.641016, -20, 0)),  # 11
    Part.LineSegment(App.Vector(44.641016, -20, 0), App.Vector(38.772119, -9.834773, 0)),  # 12
    Part.ArcOfCircle(Part.Circle(App.Vector(0, 0, 0), App.Vector(0, 0, 1), 40), math.radians(-14.233214), math.radians(14.233214)),  # 13
    Part.LineSegment(App.Vector(38.772119, 9.834773, 0), App.Vector(44.641016, 20, 0)),  # 14
    Part.LineSegment(App.Vector(44.641016, 20, 0), App.Vector(39.641016, 28.660254, 0)),  # 15
    Part.LineSegment(App.Vector(39.641016, 28.660254, 0), App.Vector(27.903223, 28.660254, 0)),  # 16
    Part.ArcOfCircle(Part.Circle(App.Vector(0, 0, 0), App.Vector(0, 0, 1), 40), math.radians(45.766786), math.radians(74.233214)),  # 17
    Part.LineSegment(App.Vector(10.868897, 38.495027, 0), App.Vector(5, 48.660254, 0)),  # 18
    Part.LineSegment(App.Vector(5, 48.660254, 0), App.Vector(-5, 48.660254, 0)),  # 19
    Part.LineSegment(App.Vector(-5, 48.660254, 0), App.Vector(-10.868897, 38.495027, 0)),  # 20
    Part.ArcOfCircle(Part.Circle(App.Vector(0, 0, 0), App.Vector(0, 0, 1), 40), math.radians(105.766786), math.radians(134.233214)),  # 21
    Part.LineSegment(App.Vector(-27.903223, 28.660254, 0), App.Vector(-39.641016, 28.660254, 0)),  # 22
    Part.LineSegment(App.Vector(-39.641016, 28.660254, 0), App.Vector(-44.641016, 20, 0)),  # 23
    Part.ArcOfCircle(Part.Circle(App.Vector(0, 0, 0), App.Vector(0, 0, 1), 35), math.radians(25.903956), math.radians(34.096044)),  # 24
    Part.ArcOfCircle(Part.Circle(App.Vector(0, 0, 0), App.Vector(0, 0, 1), 35), math.radians(0), math.radians(25.903956)),  # 25
    Part.ArcOfCircle(Part.Circle(App.Vector(0, 0, 0), App.Vector(0, 0, 1), 35), math.radians(-25.903956), math.radians(0)),  # 26
    Part.ArcOfCircle(Part.Circle(App.Vector(0, 0, 0), App.Vector(0, 0, 1), 35), math.radians(-34.096044), math.radians(-25.903956)),  # 27
    Part.ArcOfCircle(Part.Circle(App.Vector(0, 0, 0), App.Vector(0, 0, 1), 35), math.radians(-85.903956), math.radians(-34.096044)),  # 28
    Part.ArcOfCircle(Part.Circle(App.Vector(0, 0, 0), App.Vector(0, 0, 1), 35), math.radians(-94.096044), math.radians(-85.903956)),  # 29
    Part.ArcOfCircle(Part.Circle(App.Vector(0, 0, 0), App.Vector(0, 0, 1), 35), math.radians(-145.903956), math.radians(-94.096044)),  # 30
    Part.ArcOfCircle(Part.Circle(App.Vector(0, 0, 0), App.Vector(0, 0, 1), 35), math.radians(-154.096044), math.radians(-145.903956)),  # 31
    Part.ArcOfCircle(Part.Circle(App.Vector(0, 0, 0), App.Vector(0, 0, 1), 35), math.radians(154.096044), math.radians(205.903956)),  # 32
    Part.ArcOfCircle(Part.Circle(App.Vector(0, 0, 0), App.Vector(0, 0, 1), 35), math.radians(145.903956), math.radians(154.096044)),  # 33
    Part.ArcOfCircle(Part.Circle(App.Vector(0, 0, 0), App.Vector(0, 0, 1), 35), math.radians(94.096044), math.radians(145.903956)),  # 34
    Part.ArcOfCircle(Part.Circle(App.Vector(0, 0, 0), App.Vector(0, 0, 1), 35), math.radians(85.903956), math.radians(94.096044)),  # 35
    Part.ArcOfCircle(Part.Circle(App.Vector(0, 0, 0), App.Vector(0, 0, 1), 35), math.radians(34.096044), math.radians(85.903956)),  # 36
], False)
sketch2.addConstraint([
    Sketcher.Constraint("Coincident", 0, 2, 1, 1),
    Sketcher.Constraint("Coincident", 1, 2, 2, 1),
    Sketcher.Constraint("Coincident", 2, 2, 3, 1),
    Sketcher.Constraint("Coincident", 3, 2, 4, 1),
    Sketcher.Constraint("Coincident", 4, 2, 5, 1),
    Sketcher.Constraint("Coincident", 5, 2, 6, 1),
    Sketcher.Constraint("Coincident", 6, 2, 7, 1),
    Sketcher.Constraint("Coincident", 7, 2, 8, 1),
    Sketcher.Constraint("Coincident", 8, 2, 9, 1),
    Sketcher.Constraint("Coincident", 9, 2, 10, 1),
    Sketcher.Constraint("Coincident", 10, 2, 11, 1),
    Sketcher.Constraint("Coincident", 11, 2, 12, 1),
    Sketcher.Constraint("Coincident", 12, 2, 13, 1),
    Sketcher.Constraint("Coincident", 13, 2, 14, 1),
    Sketcher.Constraint("Coincident", 14, 2, 15, 1),
    Sketcher.Constraint("Coincident", 15, 2, 16, 1),
    Sketcher.Constraint("Coincident", 16, 2, 17, 1),
    Sketcher.Constraint("Coincident", 17, 2, 18, 1),
    Sketcher.Constraint("Coincident", 18, 2, 19, 1),
    Sketcher.Constraint("Coincident", 19, 2, 20, 1),
    Sketcher.Constraint("Coincident", 20, 2, 21, 1),
    Sketcher.Constraint("Coincident", 21, 2, 22, 1),
    Sketcher.Constraint("Coincident", 22, 2, 23, 1),
    Sketcher.Constraint("Coincident", 23, 2, 0, 1),
    Sketcher.Constraint("Tangent", 24, 1, 25, 2),
    Sketcher.Constraint("Tangent", 25, 1, 26, 2),
    Sketcher.Constraint("Tangent", 26, 1, 27, 2),
    Sketcher.Constraint("Tangent", 27, 1, 28, 2),
    Sketcher.Constraint("Tangent", 28, 1, 29, 2),
    Sketcher.Constraint("Tangent", 29, 1, 30, 2),
    Sketcher.Constraint("Tangent", 30, 1, 31, 2),
    Sketcher.Constraint("Tangent", 31, 1, 32, 2),
    Sketcher.Constraint("Tangent", 32, 1, 33, 2),
    Sketcher.Constraint("Tangent", 33, 1, 34, 2),
    Sketcher.Constraint("Tangent", 34, 1, 35, 2),
    Sketcher.Constraint("Tangent", 35, 1, 36, 2),
    Sketcher.Constraint("Tangent", 36, 1, 24, 2),
    Sketcher.Constraint("Horizontal", 4),
    Sketcher.Constraint("Horizontal", 7),
    Sketcher.Constraint("Horizontal", 10),
    Sketcher.Constraint("Horizontal", 16),
    Sketcher.Constraint("Horizontal", 19),
    Sketcher.Constraint("Horizontal", 22),
    Sketcher.Constraint("Coincident", 1, 3, -1, 1),
    Sketcher.Constraint("Coincident", 5, 3, -1, 1),
    Sketcher.Constraint("Coincident", 9, 3, -1, 1),
    Sketcher.Constraint("Coincident", 13, 3, -1, 1),
    Sketcher.Constraint("Coincident", 17, 3, -1, 1),
    Sketcher.Constraint("Coincident", 21, 3, -1, 1),
    Sketcher.Constraint("Coincident", 24, 3, -1, 1),
    Sketcher.Constraint("Coincident", 26, 3, -1, 1),
    Sketcher.Constraint("Coincident", 28, 3, -1, 1),
    Sketcher.Constraint("Coincident", 30, 3, -1, 1),
    Sketcher.Constraint("Coincident", 32, 3, -1, 1),
    Sketcher.Constraint("Coincident", 34, 3, -1, 1),
    Sketcher.Constraint("Equal", 1, 5),
    Sketcher.Constraint("Equal", 5, 9),
    Sketcher.Constraint("Equal", 9, 13),
    Sketcher.Constraint("Equal", 13, 17),
    Sketcher.Constraint("Equal", 17, 21),
    Sketcher.Constraint("Symmetric", 2, 2, 14, 2, -1, 1),
    Sketcher.Constraint("Symmetric", 3, 2, 15, 2, -1, 1),
    Sketcher.Constraint("Symmetric", 6, 2, 18, 2, -1, 1),
    Sketcher.Constraint("Symmetric", 10, 2, 22, 2, -1, 1),
    Sketcher.Constraint("Symmetric", 11, 2, 23, 2, -1, 1),
    Sketcher.Constraint("Symmetric", 3, 2, 10, 2, -2),
    Sketcher.Constraint("Symmetric", 2, 2, 11, 2, -2),
    Sketcher.Constraint("PointOnObject", 25, 1, -1),
    Sketcher.Constraint("Parallel", 0, 3),
    Sketcher.Constraint("Parallel", 3, 6),
    Sketcher.Constraint("Parallel", 2, 8),
    Sketcher.Constraint("Parallel", 8, 11),
    Sketcher.Constraint("Parallel", 6, 12),
    Sketcher.Constraint("Parallel", 11, 14),
    Sketcher.Constraint("Parallel", 15, 18),
    Sketcher.Constraint("Parallel", 14, 20),
    Sketcher.Constraint("Horizontal", 5, 2, 8, 2),
    Sketcher.Constraint("Horizontal", 17, 2, 20, 2),
    Sketcher.Constraint("Horizontal", 28, 1, 29, 1),
    Sketcher.Constraint("Horizontal", 27, 1, 30, 1),
    Sketcher.Constraint("Horizontal", 26, 1, 31, 1),
    Sketcher.Constraint("Horizontal", 24, 1, 32, 1),
    Sketcher.Constraint("Horizontal", 34, 1, 35, 1),
    Sketcher.Constraint("Horizontal", 33, 1, 36, 1),
    Sketcher.Constraint("Vertical", 24, 1, 26, 1),
    Sketcher.Constraint("Vertical", 30, 1, 33, 1),
    Sketcher.Constraint("Vertical", 29, 1, 34, 1),
    Sketcher.Constraint("Equal", 2, 6),
    Sketcher.Constraint("Radius", 1, Q("40 mm")),
    Sketcher.Constraint("Radius", 24, Q("35 mm")),
    Sketcher.Constraint("DistanceX", 7, 1, 7, 2, Q("10 mm")),
    Sketcher.Constraint("Angle", 0, Q("-60 deg")),
    Sketcher.Constraint("Distance", 3, Q("10 mm")),
    Sketcher.Constraint("DistanceY", 2, 2, -1, 1, Q("20 mm")),
    Sketcher.Constraint("DistanceY", 6, 2, 4, 2, Q("20 mm")),
    Sketcher.Constraint("DistanceX", 29, 1, 28, 1, Q("5 mm")),
    Sketcher.Constraint("DistanceX", 27, 1, 26, 1, Q("2.5 mm")),
    Sketcher.Constraint("DistanceX", 24, 1, 14, 2, Q("13.15755 mm")),
])
sketch2.setExpression("Constraints[88]", "Params.sketch2_radius")
sketch2.setExpression("Constraints[89]", "Params.sketch2_radius2")
sketch2.setExpression("Constraints[90]", "Params.sketch2_width")
sketch2.setExpression("Constraints[92]", "Params.sketch2_length")
pad2 = doc.addObject("PartDesign::Pad", "Pad001")
body.addObject(pad2)
pad2.Profile = sketch2
pad2.setExpression("Length", "Params.pad2_length")

doc.recompute()
